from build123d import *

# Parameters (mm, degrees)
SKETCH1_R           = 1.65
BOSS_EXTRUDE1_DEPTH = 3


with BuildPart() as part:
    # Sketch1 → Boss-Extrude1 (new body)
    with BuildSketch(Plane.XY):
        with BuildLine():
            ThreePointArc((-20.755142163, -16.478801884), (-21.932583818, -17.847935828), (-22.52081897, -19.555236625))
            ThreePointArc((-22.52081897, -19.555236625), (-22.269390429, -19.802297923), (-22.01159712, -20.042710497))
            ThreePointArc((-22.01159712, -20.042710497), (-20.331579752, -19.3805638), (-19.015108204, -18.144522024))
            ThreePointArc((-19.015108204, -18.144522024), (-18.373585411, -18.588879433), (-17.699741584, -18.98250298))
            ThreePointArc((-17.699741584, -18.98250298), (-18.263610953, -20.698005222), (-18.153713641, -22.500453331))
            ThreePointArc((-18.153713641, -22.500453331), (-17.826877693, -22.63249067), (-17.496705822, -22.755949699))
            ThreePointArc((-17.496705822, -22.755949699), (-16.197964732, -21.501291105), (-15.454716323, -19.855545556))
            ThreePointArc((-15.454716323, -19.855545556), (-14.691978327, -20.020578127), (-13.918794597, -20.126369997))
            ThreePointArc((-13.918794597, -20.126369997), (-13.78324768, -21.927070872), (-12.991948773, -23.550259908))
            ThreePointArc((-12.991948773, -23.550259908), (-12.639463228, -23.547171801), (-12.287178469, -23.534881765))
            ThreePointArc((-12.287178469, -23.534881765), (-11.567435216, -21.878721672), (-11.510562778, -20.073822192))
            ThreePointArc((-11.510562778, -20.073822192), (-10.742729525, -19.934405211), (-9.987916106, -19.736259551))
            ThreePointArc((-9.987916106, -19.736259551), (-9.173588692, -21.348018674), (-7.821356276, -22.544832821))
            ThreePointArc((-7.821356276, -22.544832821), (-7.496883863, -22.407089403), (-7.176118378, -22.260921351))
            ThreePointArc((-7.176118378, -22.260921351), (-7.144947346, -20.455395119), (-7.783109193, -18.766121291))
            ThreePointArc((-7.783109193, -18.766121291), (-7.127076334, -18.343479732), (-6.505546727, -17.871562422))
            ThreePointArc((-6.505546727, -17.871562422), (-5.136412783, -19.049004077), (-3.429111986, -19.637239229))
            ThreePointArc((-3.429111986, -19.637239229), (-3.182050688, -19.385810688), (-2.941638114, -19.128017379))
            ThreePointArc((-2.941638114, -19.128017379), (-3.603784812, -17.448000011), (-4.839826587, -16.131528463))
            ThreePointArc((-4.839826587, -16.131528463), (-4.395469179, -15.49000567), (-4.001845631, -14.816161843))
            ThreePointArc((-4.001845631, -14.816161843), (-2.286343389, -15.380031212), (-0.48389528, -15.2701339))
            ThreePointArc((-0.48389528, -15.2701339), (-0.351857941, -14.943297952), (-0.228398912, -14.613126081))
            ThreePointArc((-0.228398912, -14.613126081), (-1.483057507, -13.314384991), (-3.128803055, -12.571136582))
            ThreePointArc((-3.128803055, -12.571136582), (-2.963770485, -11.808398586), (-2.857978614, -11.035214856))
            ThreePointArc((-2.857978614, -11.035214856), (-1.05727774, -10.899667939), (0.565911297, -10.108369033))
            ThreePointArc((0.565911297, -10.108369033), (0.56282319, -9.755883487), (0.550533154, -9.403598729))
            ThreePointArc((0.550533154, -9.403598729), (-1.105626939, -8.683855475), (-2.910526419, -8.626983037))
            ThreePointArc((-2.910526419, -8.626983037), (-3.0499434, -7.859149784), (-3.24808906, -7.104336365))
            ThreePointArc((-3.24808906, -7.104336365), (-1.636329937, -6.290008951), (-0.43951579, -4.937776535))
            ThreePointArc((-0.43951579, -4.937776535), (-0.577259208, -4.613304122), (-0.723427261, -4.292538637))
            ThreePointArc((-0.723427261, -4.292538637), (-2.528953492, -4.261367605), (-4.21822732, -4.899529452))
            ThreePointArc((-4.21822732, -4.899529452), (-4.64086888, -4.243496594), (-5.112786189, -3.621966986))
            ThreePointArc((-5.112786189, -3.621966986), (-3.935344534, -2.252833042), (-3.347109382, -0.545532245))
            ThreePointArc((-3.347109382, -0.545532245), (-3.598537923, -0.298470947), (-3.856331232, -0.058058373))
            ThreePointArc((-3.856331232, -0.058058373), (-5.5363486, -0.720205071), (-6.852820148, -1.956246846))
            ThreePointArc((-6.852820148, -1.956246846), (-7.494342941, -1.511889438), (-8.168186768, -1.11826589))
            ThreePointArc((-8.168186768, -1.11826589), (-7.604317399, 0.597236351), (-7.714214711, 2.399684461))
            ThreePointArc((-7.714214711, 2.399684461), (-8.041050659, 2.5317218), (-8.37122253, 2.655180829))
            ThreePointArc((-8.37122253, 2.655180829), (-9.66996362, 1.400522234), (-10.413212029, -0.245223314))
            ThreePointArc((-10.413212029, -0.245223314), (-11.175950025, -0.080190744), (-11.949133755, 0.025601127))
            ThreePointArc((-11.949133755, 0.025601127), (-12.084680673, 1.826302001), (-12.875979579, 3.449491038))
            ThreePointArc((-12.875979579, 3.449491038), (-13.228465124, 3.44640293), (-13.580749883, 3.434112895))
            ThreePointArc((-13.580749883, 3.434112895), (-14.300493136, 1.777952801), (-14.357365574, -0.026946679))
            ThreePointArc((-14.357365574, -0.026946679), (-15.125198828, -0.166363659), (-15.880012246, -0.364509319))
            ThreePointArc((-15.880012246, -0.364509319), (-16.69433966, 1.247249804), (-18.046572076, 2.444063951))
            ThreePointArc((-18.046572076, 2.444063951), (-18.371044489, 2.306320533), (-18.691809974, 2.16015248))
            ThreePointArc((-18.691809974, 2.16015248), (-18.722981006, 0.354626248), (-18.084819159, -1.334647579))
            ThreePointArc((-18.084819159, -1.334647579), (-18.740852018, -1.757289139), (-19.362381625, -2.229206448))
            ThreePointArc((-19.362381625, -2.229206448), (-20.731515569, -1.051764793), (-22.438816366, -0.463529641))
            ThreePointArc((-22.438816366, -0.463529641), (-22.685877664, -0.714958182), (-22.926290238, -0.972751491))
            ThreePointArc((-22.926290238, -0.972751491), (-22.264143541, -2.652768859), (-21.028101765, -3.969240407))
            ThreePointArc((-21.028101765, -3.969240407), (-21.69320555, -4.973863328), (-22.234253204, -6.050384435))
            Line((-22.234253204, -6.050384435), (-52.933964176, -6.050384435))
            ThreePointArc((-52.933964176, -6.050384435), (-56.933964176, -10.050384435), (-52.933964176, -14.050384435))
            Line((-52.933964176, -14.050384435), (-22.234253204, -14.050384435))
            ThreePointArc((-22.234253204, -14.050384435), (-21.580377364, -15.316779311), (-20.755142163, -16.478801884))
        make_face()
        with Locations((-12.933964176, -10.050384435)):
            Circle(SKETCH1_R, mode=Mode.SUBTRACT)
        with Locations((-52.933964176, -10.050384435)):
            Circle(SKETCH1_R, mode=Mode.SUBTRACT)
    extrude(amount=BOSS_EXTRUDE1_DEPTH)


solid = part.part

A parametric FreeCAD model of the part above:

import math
import FreeCAD as App
import Part
import Sketcher
from FreeCAD import Vector

doc = App.newDocument("Part")
body = doc.addObject("PartDesign::Body", "Body")

sketch1 = doc.addObject("Sketcher::SketchObject", "Sketch")
body.addObject(sketch1)
sketch1.AttachmentSupport = (doc.XY_Plane, [""])
sketch1.MapMode = "FlatFace"
sketch1.addGeometry([
    Part.ArcOfCircle(Part.Circle(Vector(-17.769521, -20.237268, 0), Vector(0, 0, 1), 4.8), math.radians(128.462657), math.radians(171.831207)),
    Part.ArcOfCircle(Part.Circle(Vector(-12.933965, -10.050385, 0), Vector(0, 0, 1), 13.499999), math.radians(-135.246095), math.radians(-132.253905)),
    Part.ArcOfCircle(Part.Circle(Vector(-22.900228, -15.325684, 0), Vector(0, 0, 1), 4.8), math.radians(-79.331207), math.radians(-35.962657)),
    Part.ArcOfCircle(Part.Circle(Vector(-12.933964, -10.050385, 0), Vector(0, 0, 1), 10.124), math.radians(-126.917622), math.radians(-118.082378)),
    Part.ArcOfCircle(Part.Circle(Vector(-13.503085, -21.312325, 0), Vector(0, 0, 1), 4.8), math.radians(150.962657), math.radians(194.331207)),
    Part.ArcOfCircle(Part.Circle(Vector(-12.933964, -10.050384, 0), Vector(0, 0, 1), 13.500001), math.radians(-112.746095), math.radians(-109.753905)),
    Part.ArcOfCircle(Part.Circle(Vector(-20.122821, -18.73805, 0), Vector(0, 0, 1), 4.8), math.radians(-56.831207), math.radians(-13.462657)),
    Part.ArcOfCircle(Part.Circle(Vector(-12.933964, -10.050385, 0), Vector(0, 0, 1), 10.124), math.radians(-104.417622), math.radians(-95.582378)),
    Part.ArcOfCircle(Part.Circle(Vector(-9.150005, -20.672854, 0), Vector(0, 0, 1), 4.8), math.radians(173.462657), math.radians(216.831207)),
    Part.ArcOfCircle(Part.Circle(Vector(-12.933964, -10.050386, 0), Vector(0, 0, 1), 13.499998), math.radians(-90.246095), math.radians(-87.253905)),
    Part.ArcOfCircle(Part.Circle(Vector(-16.250976, -20.827797, 0), Vector(0, 0, 1), 4.8), math.radians(-34.331207), math.radians(9.037343)),
    Part.ArcOfCircle(Part.Circle(Vector(-12.933964, -10.050384, 0), Vector(0, 0, 1), 10.124), math.radians(-81.917621), math.radians(-73.082379)),
    Part.ArcOfCircle(Part.Circle(Vector(-5.372999, -18.416208, 0), Vector(0, 0, 1), 4.8), math.radians(-164.037343), math.radians(-120.668793)),
    Part.ArcOfCircle(Part.Circle(Vector(-12.933965, -10.050383, 0), Vector(0, 0, 1), 13.500002), math.radians(-67.746095), math.radians(-64.753905)),
    Part.ArcOfCircle(Part.Circle(Vector(-11.874147, -21.276781, 0), Vector(0, 0, 1), 4.8), math.radians(-11.831207), math.radians(31.537343)),
    Part.ArcOfCircle(Part.Circle(Vector(-12.933964, -10.050385, 0), Vector(0, 0, 1), 10.124), math.radians(-59.417622), math.radians(-50.582378)),
    Part.ArcOfCircle(Part.Circle(Vector(-2.747081, -14.885941, 0), Vector(0, 0, 1), 4.8), math.radians(-141.537343), math.radians(-98.168793)),
    Part.ArcOfCircle(Part.Circle(Vector(-12.933964, -10.050385, 0), Vector(0, 0, 1), 13.499999), math.radians(-45.246095), math.radians(-42.253905)),
    Part.ArcOfCircle(Part.Circle(Vector(-7.658664, -20.016648, 0), Vector(0, 0, 1), 4.8), math.radians(10.668793), math.radians(54.037343)),
    Part.ArcOfCircle(Part.Circle(Vector(-12.933964, -10.050384, 0), Vector(0, 0, 1), 10.124), math.radians(-36.917621), math.radians(-28.082379)),
    Part.ArcOfCircle(Part.Circle(Vector(-1.672024, -10.619505, 0), Vector(0, 0, 1), 4.8), math.radians(-119.037343), math.radians(-75.668793)),
    Part.ArcOfCircle(Part.Circle(Vector(-12.933965, -10.050384, 0), Vector(0, 0, 1), 13.500001), math.radians(-22.746095), math.radians(-19.753905)),
    Part.ArcOfCircle(Part.Circle(Vector(-4.246299, -17.239242, 0), Vector(0, 0, 1), 4.8), math.radians(33.168793), math.radians(76.537343)),
    Part.ArcOfCircle(Part.Circle(Vector(-12.933964, -10.050384, 0), Vector(0, 0, 1), 10.124), math.radians(-14.417621), math.radians(-5.582379)),
    Part.ArcOfCircle(Part.Circle(Vector(-2.311495, -6.266425, 0), Vector(0, 0, 1), 4.8), math.radians(-96.537343), math.radians(-53.168793)),
    Part.ArcOfCircle(Part.Circle(Vector(-12.933963, -10.050384, 0), Vector(0, 0, 1), 13.499998), math.radians(-0.246095), math.radians(2.746095)),
    Part.ArcOfCircle(Part.Circle(Vector(-2.156551, -13.367397, 0), Vector(0, 0, 1), 4.8), math.radians(55.668793), math.radians(99.037343)),
    Part.ArcOfCircle(Part.Circle(Vector(-12.933964, -10.050384, 0), Vector(0, 0, 1), 10.124), math.radians(8.082379), math.radians(16.917621)),
    Part.ArcOfCircle(Part.Circle(Vector(-4.568141, -2.489419, 0), Vector(0, 0, 1), 4.8), math.radians(-74.037343), math.radians(-30.668793)),
    Part.ArcOfCircle(Part.Circle(Vector(-12.933964, -10.050385, 0), Vector(0, 0, 1), 13.5), math.radians(22.253905), math.radians(25.246095)),
    Part.ArcOfCircle(Part.Circle(Vector(-1.707567, -8.990567, 0), Vector(0, 0, 1), 4.8), math.radians(78.168793), math.radians(121.537343)),
    Part.ArcOfCircle(Part.Circle(Vector(-12.933964, -10.050385, 0), Vector(0, 0, 1), 10.124), math.radians(30.582379), math.radians(39.417621)),
    Part.ArcOfCircle(Part.Circle(Vector(-8.098407, 0.136499, 0), Vector(0, 0, 1), 4.8), math.radians(-51.537343), math.radians(-8.168793)),
    Part.ArcOfCircle(Part.Circle(Vector(-12.933964, -10.050384, 0), Vector(0, 0, 1), 13.499999), math.radians(44.753905), math.radians(47.746095)),
    Part.ArcOfCircle(Part.Circle(Vector(-2.967701, -4.775085, 0), Vector(0, 0, 1), 4.8), math.radians(100.668793), math.radians(144.037343)),
    Part.ArcOfCircle(Part.Circle(Vector(-12.933964, -10.050385, 0), Vector(0, 0, 1), 10.124), math.radians(53.082379), math.radians(61.917621)),
    Part.ArcOfCircle(Part.Circle(Vector(-12.364844, 1.211556, 0), Vector(0, 0, 1), 4.8), math.radians(-29.037343), math.radians(14.331207)),
    Part.ArcOfCircle(Part.Circle(Vector(-12.933964, -10.050385, 0), Vector(0, 0, 1), 13.500001), math.radians(67.253905), math.radians(70.246095)),
    Part.ArcOfCircle(Part.Circle(Vector(-5.745107, -1.362719, 0), Vector(0, 0, 1), 4.8), math.radians(123.168793), math.radians(166.537343)),
    Part.ArcOfCircle(Part.Circle(Vector(-12.933964, -10.050385, 0), Vector(0, 0, 1), 10.124), math.radians(75.582379), math.radians(84.417621)),
    Part.ArcOfCircle(Part.Circle(Vector(-16.717924, 0.572085, 0), Vector(0, 0, 1), 4.8), math.radians(-6.537343), math.radians(36.831207)),
    Part.ArcOfCircle(Part.Circle(Vector(-12.933964, -10.050386, 0), Vector(0, 0, 1), 13.500001), math.radians(89.753905), math.radians(92.746095)),
    Part.ArcOfCircle(Part.Circle(Vector(-9.616952, 0.727029, 0), Vector(0, 0, 1), 4.8), math.radians(145.668793), math.radians(189.037343)),
    Part.ArcOfCircle(Part.Circle(Vector(-12.933964, -10.050384, 0), Vector(0, 0, 1), 10.124), math.radians(98.082378), math.radians(106.917622)),
    Part.ArcOfCircle(Part.Circle(Vector(-20.49493, -1.684561, 0), Vector(0, 0, 1), 4.8), math.radians(15.962657), math.radians(59.331207)),
    Part.ArcOfCircle(Part.Circle(Vector(-12.933964, -10.050385, 0), Vector(0, 0, 1), 13.5), math.radians(112.253905), math.radians(115.246095)),
    Part.ArcOfCircle(Part.Circle(Vector(-13.993782, 1.176012, 0), Vector(0, 0, 1), 4.8), math.radians(168.168793), math.radians(211.537343)),
    Part.ArcOfCircle(Part.Circle(Vector(-12.933964, -10.050384, 0), Vector(0, 0, 1), 10.124), math.radians(120.582379), math.radians(129.417621)),
    Part.ArcOfCircle(Part.Circle(Vector(-23.120847, -5.214828, 0), Vector(0, 0, 1), 4.8), math.radians(38.462657), math.radians(81.831207)),
    Part.ArcOfCircle(Part.Circle(Vector(-12.933965, -10.050384, 0), Vector(0, 0, 1), 13.499999), math.radians(134.753905), math.radians(137.746095)),
    Part.ArcOfCircle(Part.Circle(Vector(-18.209264, -0.084121, 0), Vector(0, 0, 1), 4.8), math.radians(-169.331207), math.radians(-125.962657)),
    Part.ArcOfCircle(Part.Circle(Vector(-12.933964, -10.050384, 0), Vector(0, 0, 1), 10.124), math.radians(143.082379), math.radians(156.727742)),
    Part.LineSegment(Vector(-22.234253, -6.050384, 0), Vector(-52.933964, -6.050384, 0)),
    Part.ArcOfCircle(Part.Circle(Vector(-52.933964, -10.050384, 0), Vector(0, 0, 1), 4), math.radians(90), math.radians(270)),
    Part.LineSegment(Vector(-52.933964, -14.050384, 0), Vector(-22.234253, -14.050384, 0)),
    Part.ArcOfCircle(Part.Circle(Vector(-12.933964, -10.050384, 0), Vector(0, 0, 1), 10.124), math.radians(-156.727742), math.radians(-140.582378)),
    Part.Circle(Vector(-52.933964, -10.050384, 0), Vector(0, 0, 1), 1.65),
    Part.Circle(Vector(-12.933964, -10.050384, 0), Vector(0, 0, 1), 1.65),
], False)
sketch1.addConstraint([
    Sketcher.Constraint("Coincident", 0, 2, 1, 1),
    Sketcher.Constraint("Coincident", 1, 2, 2, 1),
    Sketcher.Constraint("Coincident", 2, 2, 3, 1),
    Sketcher.Constraint("Coincident", 3, 2, 4, 1),
    Sketcher.Constraint("Coincident", 4, 2, 5, 1),
    Sketcher.Constraint("Coincident", 5, 2, 6, 1),
    Sketcher.Constraint("Coincident", 6, 2, 7, 1),
    Sketcher.Constraint("Coincident", 7, 2, 8, 1),
    Sketcher.Constraint("Coincident", 8, 2, 9, 1),
    Sketcher.Constraint("Coincident", 9, 2, 10, 1),
    Sketcher.Constraint("Coincident", 10, 2, 11, 1),
    Sketcher.Constraint("Coincident", 11, 2, 12, 1),
    Sketcher.Constraint("Coincident", 12, 2, 13, 1),
    Sketcher.Constraint("Coincident", 13, 2, 14, 1),
    Sketcher.Constraint("Coincident", 14, 2, 15, 1),
    Sketcher.Constraint("Coincident", 15, 2, 16, 1),
    Sketcher.Constraint("Coincident", 16, 2, 17, 1),
    Sketcher.Constraint("Coincident", 17, 2, 18, 1),
    Sketcher.Constraint("Coincident", 18, 2, 19, 1),
    Sketcher.Constraint("Coincident", 19, 2, 20, 1),
    Sketcher.Constraint("Coincident", 20, 2, 21, 1),
    Sketcher.Constraint("Coincident", 21, 2, 22, 1),
    Sketcher.Constraint("Coincident", 22, 2, 23, 1),
    Sketcher.Constraint("Coincident", 23, 2, 24, 1),
    Sketcher.Constraint("Coincident", 24, 2, 25, 1),
    Sketcher.Constraint("Coincident", 25, 2, 26, 1),
    Sketcher.Constraint("Coincident", 26, 2, 27, 1),
    Sketcher.Constraint("Coincident", 27, 2, 28, 1),
    Sketcher.Constraint("Coincident", 28, 2, 29, 1),
    Sketcher.Constraint("Coincident", 29, 2, 30, 1),
    Sketcher.Constraint("Coincident", 30, 2, 31, 1),
    Sketcher.Constraint("Coincident", 31, 2, 32, 1),
    Sketcher.Constraint("Coincident", 32, 2, 33, 1),
    Sketcher.Constraint("Coincident", 33, 2, 34, 1),
    Sketcher.Constraint("Coincident", 34, 2, 35, 1),
    Sketcher.Constraint("Coincident", 35, 2, 36, 1),
    Sketcher.Constraint("Coincident", 36, 2, 37, 1),
    Sketcher.Constraint("Coincident", 37, 2, 38, 1),
    Sketcher.Constraint("Coincident", 38, 2, 39, 1),
    Sketcher.Constraint("Coincident", 39, 2, 40, 1),
    Sketcher.Constraint("Coincident", 40, 2, 41, 1),
    Sketcher.Constraint("Coincident", 41, 2, 42, 1),
    Sketcher.Constraint("Coincident", 42, 2, 43, 1),
    Sketcher.Constraint("Coincident", 43, 2, 44, 1),
    Sketcher.Constraint("Coincident", 44, 2, 45, 1),
    Sketcher.Constraint("Coincident", 45, 2, 46, 1),
    Sketcher.Constraint("Coincident", 46, 2, 47, 1),
    Sketcher.Constraint("Coincident", 47, 2, 48, 1),
    Sketcher.Constraint("Coincident", 48, 2, 49, 1),
    Sketcher.Constraint("Coincident", 49, 2, 50, 1),
    Sketcher.Constraint("Coincident", 50, 2, 51, 1),
    Sketcher.Constraint("Coincident", 51, 2, 52, 1),
    Sketcher.Constraint("Coincident", 52, 2, 53, 1),
    Sketcher.Constraint("Coincident", 53, 2, 54, 1),
    Sketcher.Constraint("Coincident", 54, 2, 55, 1),
    Sketcher.Constraint("Coincident", 55, 2, 0, 1),
    Sketcher.Constraint("Horizontal", 52),
    Sketcher.Constraint("Horizontal", 54),
    Sketcher.Constraint("Coincident", 3, 3, 1, 3),
    Sketcher.Constraint("Coincident", 5, 3, 1, 3),
    Sketcher.Constraint("Coincident", 7, 3, 1, 3),
    Sketcher.Constraint("Coincident", 9, 3, 1, 3),
    Sketcher.Constraint("Coincident", 11, 3, 1, 3),
    Sketcher.Constraint("Coincident", 13, 3, 1, 3),
    Sketcher.Constraint("Coincident", 15, 3, 1, 3),
    Sketcher.Constraint("Coincident", 17, 3, 1, 3),
    Sketcher.Constraint("Coincident", 19, 3, 1, 3),
    Sketcher.Constraint("Coincident", 21, 3, 1, 3),
    Sketcher.Constraint("Coincident", 23, 3, 1, 3),
    Sketcher.Constraint("Coincident", 25, 3, 1, 3),
    Sketcher.Constraint("Coincident", 27, 3, 1, 3),
    Sketcher.Constraint("Coincident", 29, 3, 1, 3),
    Sketcher.Constraint("Coincident", 31, 3, 1, 3),
    Sketcher.Constraint("Coincident", 33, 3, 1, 3),
    Sketcher.Constraint("Coincident", 35, 3, 1, 3),
    Sketcher.Constraint("Coincident", 37, 3, 1, 3),
    Sketcher.Constraint("Coincident", 39, 3, 1, 3),
    Sketcher.Constraint("Coincident", 41, 3, 1, 3),
    Sketcher.Constraint("Coincident", 43, 3, 1, 3),
    Sketcher.Constraint("Coincident", 45, 3, 1, 3),
    Sketcher.Constraint("Coincident", 47, 3, 1, 3),
    Sketcher.Constraint("Coincident", 49, 3, 1, 3),
    Sketcher.Constraint("Coincident", 51, 3, 1, 3),
    Sketcher.Constraint("Coincident", 55, 3, 1, 3),
    Sketcher.Constraint("Coincident", 56, 3, 53, 3),
    Sketcher.Constraint("Coincident", 57, 3, 1, 3),
    Sketcher.Constraint("Radius", 53, 4.0),
    Sketcher.Constraint("Diameter", 56, 3.3),
    Sketcher.Constraint("Diameter", 57, 3.3),
    Sketcher.Constraint("Radius", 0, 4.8),
    Sketcher.Constraint("Radius", 1, 13.499999),
    Sketcher.Constraint("Radius", 2, 4.8),
    Sketcher.Constraint("Radius", 4, 4.8),
    Sketcher.Constraint("Radius", 5, 13.500001),
    Sketcher.Constraint("Radius", 6, 4.8),
    Sketcher.Constraint("Radius", 8, 4.8),
    Sketcher.Constraint("Radius", 9, 13.499998),
    Sketcher.Constraint("Radius", 10, 4.8),
    Sketcher.Constraint("Radius", 12, 4.8),
    Sketcher.Constraint("Radius", 13, 13.500002),
    Sketcher.Constraint("Radius", 14, 4.8),
    Sketcher.Constraint("Radius", 16, 4.8),
    Sketcher.Constraint("Radius", 17, 13.499999),
    Sketcher.Constraint("Radius", 18, 4.8),
    Sketcher.Constraint("Radius", 20, 4.8),
    Sketcher.Constraint("Radius", 21, 13.500001),
    Sketcher.Constraint("Radius", 22, 4.8),
    Sketcher.Constraint("Radius", 24, 4.8),
    Sketcher.Constraint("Radius", 25, 13.499998),
    Sketcher.Constraint("Radius", 26, 4.8),
    Sketcher.Constraint("Radius", 28, 4.8),
    Sketcher.Constraint("Radius", 29, 13.5),
    Sketcher.Constraint("Radius", 30, 4.8),
    Sketcher.Constraint("Radius", 32, 4.8),
    Sketcher.Constraint("Radius", 33, 13.499999),
    Sketcher.Constraint("Radius", 34, 4.8),
    Sketcher.Constraint("Radius", 36, 4.8),
    Sketcher.Constraint("Radius", 37, 13.500001),
    Sketcher.Constraint("Radius", 38, 4.8),
    Sketcher.Constraint("Radius", 40, 4.8),
    Sketcher.Constraint("Radius", 41, 13.500001),
    Sketcher.Constraint("Radius", 42, 4.8),
    Sketcher.Constraint("Radius", 44, 4.8),
    Sketcher.Constraint("Radius", 45, 13.5),
    Sketcher.Constraint("Radius", 46, 4.8),
    Sketcher.Constraint("Radius", 48, 4.8),
    Sketcher.Constraint("Radius", 49, 13.499999),
    Sketcher.Constraint("Radius", 50, 4.8),
    Sketcher.Constraint("Radius", 3, 10.124),
    Sketcher.Constraint("Radius", 7, 10.124),
    Sketcher.Constraint("Radius", 11, 10.124),
    Sketcher.Constraint("Radius", 15, 10.124),
    Sketcher.Constraint("Radius", 19, 10.124),
    Sketcher.Constraint("Radius", 23, 10.124),
    Sketcher.Constraint("Radius", 27, 10.124),
    Sketcher.Constraint("Radius", 31, 10.124),
    Sketcher.Constraint("Radius", 35, 10.124),
    Sketcher.Constraint("Radius", 39, 10.124),
    Sketcher.Constraint("Radius", 43, 10.124),
    Sketcher.Constraint("Radius", 47, 10.124),
    Sketcher.Constraint("Radius", 51, 10.124),
    Sketcher.Constraint("Radius", 55, 10.124),
    Sketcher.Constraint("DistanceX", 12, 3, -1, 1, 5.372999),
    Sketcher.Constraint("DistanceX", 52, 2, 52, 1, 30.699711),
    Sketcher.Constraint("DistanceX", 54, 1, 54, 2, 30.699711),
    Sketcher.Constraint("DistanceX", 22, 3, -1, 1, 4.246299),
    Sketcher.Constraint("DistanceY", -1, 1, 32, 3, 0.136499),
    Sketcher.Constraint("DistanceX", 34, 3, -1, 1, 2.967701),
    Sketcher.Constraint("DistanceX", 21, 2, -1, 1, 0.228399),
    Sketcher.Constraint("DistanceY", 25, 2, -1, 1, 9.403599),
    Sketcher.Constraint("DistanceY", -1, 1, 39, 2, 0.025601),
    Sketcher.Constraint("DistanceX", 50, 2, -1, 1, 21.028102),
    Sketcher.Constraint("DistanceY", 55, 2, -1, 1, 16.478802),
    Sketcher.Constraint("DistanceX", 0, 3, -1, 1, 17.769521),
    Sketcher.Constraint("DistanceX", 6, 3, -1, 1, 20.122821),
    Sketcher.Constraint("DistanceY", 6, 3, -1, 1, 18.73805),
    Sketcher.Constraint("DistanceY", 14, 3, -1, 1, 21.276781),
    Sketcher.Constraint("DistanceX", 16, 3, -1, 1, 2.747081),
    Sketcher.Constraint("DistanceY", 16, 3, -1, 1, 14.885941),
    Sketcher.Constraint("DistanceY", 18, 3, -1, 1, 20.016648),
    Sketcher.Constraint("DistanceY", 22, 3, -1, 1, 17.239242),
    Sketcher.Constraint("DistanceX", 26, 3, -1, 1, 2.156551),
    Sketcher.Constraint("DistanceX", 28, 3, -1, 1, 4.568141),
    Sketcher.Constraint("DistanceY", 28, 3, -1, 1, 2.489419),
    Sketcher.Constraint("DistanceY", 38, 3, -1, 1, 1.362719),
    Sketcher.Constraint("DistanceX", 42, 3, -1, 1, 9.616952),
    Sketcher.Constraint("DistanceY", -1, 1, 42, 3, 0.727029),
    Sketcher.Constraint("DistanceX", 44, 3, -1, 1, 20.49493),
    Sketcher.Constraint("DistanceY", 44, 3, -1, 1, 1.684561),
    Sketcher.Constraint("DistanceX", 46, 3, -1, 1, 13.993782),
    Sketcher.Constraint("DistanceY", 50, 3, -1, 1, 0.084121),
    Sketcher.Constraint("DistanceX", 0, 2, -1, 1, 22.520819),
    Sketcher.Constraint("DistanceY", 1, 2, -1, 1, 20.04271),
    Sketcher.Constraint("DistanceX", 2, 2, -1, 1, 19.015108),
    Sketcher.Constraint("DistanceX", 3, 2, -1, 1, 17.699742),
    Sketcher.Constraint("DistanceY", 7, 2, -1, 1, 20.12637),
    Sketcher.Constraint("DistanceX", 8, 2, -1, 1, 12.991949),
    Sketcher.Constraint("DistanceX", 9, 2, -1, 1, 12.287178),
    Sketcher.Constraint("DistanceY", 11, 2, -1, 1, 19.73626),
    Sketcher.Constraint("DistanceX", 13, 2, -1, 1, 7.176118),
    Sketcher.Constraint("DistanceX", 17, 2, -1, 1, 2.941638),
    Sketcher.Constraint("DistanceY", 19, 2, -1, 1, 14.816162),
    Sketcher.Constraint("DistanceX", 23, 2, -1, 1, 2.857979),
    Sketcher.Constraint("DistanceY", 24, 2, -1, 1, 10.108369),
    Sketcher.Constraint("DistanceY", 29, 2, -1, 1, 4.292539),
    Sketcher.Constraint("DistanceY", 30, 2, -1, 1, 4.899529),
    Sketcher.Constraint("DistanceX", 32, 2, -1, 1, 3.347109),
    Sketcher.Constraint("DistanceX", 33, 2, -1, 1, 3.856331),
    Sketcher.Constraint("DistanceY", -1, 1, 37, 2, 2.655181),
    Sketcher.Constraint("DistanceX", 40, 2, -1, 1, 12.87598),
    Sketcher.Constraint("DistanceX", 45, 2, -1, 1, 18.69181),
    Sketcher.Constraint("DistanceX", 47, 2, -1, 1, 19.362382),
    Sketcher.Constraint("DistanceY", 48, 2, -1, 1, 0.46353),
    Sketcher.Constraint("DistanceX", 4, 3, -1, 1, 13.503085),
    Sketcher.Constraint("DistanceX", 10, 3, -1, 1, 16.250976),
    Sketcher.Constraint("DistanceX", 20, 3, -1, 1, 1.672024),
    Sketcher.Constraint("DistanceX", 36, 3, -1, 1, 12.364844),
    Sketcher.Constraint("DistanceY", -1, 1, 36, 3, 1.211556),
    Sketcher.Constraint("DistanceX", 53, 3, -1, 1, 52.933964),
    Sketcher.Constraint("DistanceY", 53, 3, -1, 1, 10.050384),
])
pad1 = doc.addObject("PartDesign::Pad", "Pad")
body.addObject(pad1)
pad1.Profile = sketch1
pad1.Length = 3

doc.recompute()
